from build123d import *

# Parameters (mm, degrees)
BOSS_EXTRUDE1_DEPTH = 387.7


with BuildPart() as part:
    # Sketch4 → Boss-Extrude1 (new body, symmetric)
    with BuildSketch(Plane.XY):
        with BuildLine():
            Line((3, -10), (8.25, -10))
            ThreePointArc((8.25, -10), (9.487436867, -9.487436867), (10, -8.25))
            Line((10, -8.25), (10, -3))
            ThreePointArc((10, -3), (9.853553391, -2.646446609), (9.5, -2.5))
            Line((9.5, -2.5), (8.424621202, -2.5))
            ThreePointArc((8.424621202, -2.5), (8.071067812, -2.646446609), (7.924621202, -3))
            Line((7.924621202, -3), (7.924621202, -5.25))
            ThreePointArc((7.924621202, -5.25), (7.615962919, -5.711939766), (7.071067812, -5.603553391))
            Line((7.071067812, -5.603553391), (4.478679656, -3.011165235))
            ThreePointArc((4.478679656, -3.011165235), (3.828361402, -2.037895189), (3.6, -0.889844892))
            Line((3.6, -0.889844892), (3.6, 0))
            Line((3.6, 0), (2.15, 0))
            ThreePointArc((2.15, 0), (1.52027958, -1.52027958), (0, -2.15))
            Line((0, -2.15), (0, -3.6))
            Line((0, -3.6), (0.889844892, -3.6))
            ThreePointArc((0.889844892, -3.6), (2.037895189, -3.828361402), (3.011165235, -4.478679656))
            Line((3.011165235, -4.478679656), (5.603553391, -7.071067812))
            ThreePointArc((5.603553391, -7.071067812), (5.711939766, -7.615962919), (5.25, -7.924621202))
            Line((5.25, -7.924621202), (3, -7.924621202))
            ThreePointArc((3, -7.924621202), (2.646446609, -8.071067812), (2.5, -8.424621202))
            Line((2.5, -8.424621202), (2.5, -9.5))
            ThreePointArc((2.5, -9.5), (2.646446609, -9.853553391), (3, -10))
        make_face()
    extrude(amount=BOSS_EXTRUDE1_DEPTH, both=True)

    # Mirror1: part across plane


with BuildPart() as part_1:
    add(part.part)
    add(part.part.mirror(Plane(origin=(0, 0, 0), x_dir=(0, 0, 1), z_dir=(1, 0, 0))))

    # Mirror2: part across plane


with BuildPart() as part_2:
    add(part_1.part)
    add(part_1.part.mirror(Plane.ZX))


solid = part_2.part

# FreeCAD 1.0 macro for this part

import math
import FreeCAD as App
import Part
import Sketcher

doc = App.newDocument("Part")
body = doc.addObject("PartDesign::Body", "Body")

# Sketch on XY plane
sketch1 = doc.addObject("Sketcher::SketchObject", "Sketch")
body.addObject(sketch1)
sketch1.AttachmentSupport = (doc.XY_Plane, [""])
sketch1.MapMode = "FlatFace"
sketch1.addGeometry(Part.LineSegment(App.Vector(3, -10, 0), App.Vector(8.25, -10, 0)), False)
sketch1.addGeometry(Part.ArcOfCircle(Part.Circle(App.Vector(8.25, -8.25, 0), App.Vector(0, 0, 1), 1.75), math.radians(-90), math.radians(0)), False)
sketch1.addGeometry(Part.LineSegment(App.Vector(10, -8.25, 0), App.Vector(10, -3, 0)), False)
sketch1.addGeometry(Part.ArcOfCircle(Part.Circle(App.Vector(9.5, -3, 0), App.Vector(0, 0, 1), 0.5), math.radians(0), math.radians(90)), False)
sketch1.addGeometry(Part.LineSegment(App.Vector(9.5, -2.5, 0), App.Vector(8.424621, -2.5, 0)), False)
sketch1.addGeometry(Part.ArcOfCircle(Part.Circle(App.Vector(8.424621, -3, 0), App.Vector(0, 0, 1), 0.5), math.radians(90), math.radians(180)), False)
sketch1.addGeometry(Part.LineSegment(App.Vector(7.924621, -3, 0), App.Vector(7.924621, -5.25, 0)), False)
sketch1.addGeometry(Part.ArcOfCircle(Part.Circle(App.Vector(7.424621, -5.25, 0), App.Vector(0, 0, 1), 0.5), math.radians(-135), math.radians(0)), False)
sketch1.addGeometry(Part.LineSegment(App.Vector(7.071068, -5.603553, 0), App.Vector(4.47868, -3.011165, 0)), False)
sketch1.addGeometry(Part.ArcOfCircle(Part.Circle(App.Vector(6.6, -0.889845, 0), App.Vector(0, 0, 1), 3), math.radians(180), math.radians(225)), False)
sketch1.addGeometry(Part.LineSegment(App.Vector(3.6, -0.889845, 0), App.Vector(3.6, 0, 0)), False)
sketch1.addGeometry(Part.LineSegment(App.Vector(3.6, 0, 0), App.Vector(2.15, 0, 0)), False)
sketch1.addGeometry(Part.ArcOfCircle(Part.Circle(App.Vector(0, 0, 0), App.Vector(0, 0, 1), 2.15), math.radians(-90), math.radians(0)), False)
sketch1.addGeometry(Part.LineSegment(App.Vector(0, -2.15, 0), App.Vector(0, -3.6, 0)), False)
sketch1.addGeometry(Part.LineSegment(App.Vector(0, -3.6, 0), App.Vector(0.889845, -3.6, 0)), False)
sketch1.addGeometry(Part.ArcOfCircle(Part.Circle(App.Vector(0.889845, -6.6, 0), App.Vector(0, 0, 1), 3), math.radians(45), math.radians(90)), False)
sketch1.addGeometry(Part.LineSegment(App.Vector(3.011165, -4.47868, 0), App.Vector(5.603553, -7.071068, 0)), False)
sketch1.addGeometry(Part.ArcOfCircle(Part.Circle(App.Vector(5.25, -7.424621, 0), App.Vector(0, 0, 1), 0.5), math.radians(-90), math.radians(45)), False)
sketch1.addGeometry(Part.LineSegment(App.Vector(5.25, -7.924621, 0), App.Vector(3, -7.924621, 0)), False)
sketch1.addGeometry(Part.ArcOfCircle(Part.Circle(App.Vector(3, -8.424621, 0), App.Vector(0, 0, 1), 0.5), math.radians(90), math.radians(180)), False)
sketch1.addGeometry(Part.LineSegment(App.Vector(2.5, -8.424621, 0), App.Vector(2.5, -9.5, 0)), False)
sketch1.addGeometry(Part.ArcOfCircle(Part.Circle(App.Vector(3, -9.5, 0), App.Vector(0, 0, 1), 0.5), math.radians(180), math.radians(270)), False)
sketch1.addConstraint(Sketcher.Constraint("Tangent", 0, 2, 1, 1))
sketch1.addConstraint(Sketcher.Constraint("Tangent", 1, 2, 2, 1))
sketch1.addConstraint(Sketcher.Constraint("Tangent", 2, 2, 3, 1))
sketch1.addConstraint(Sketcher.Constraint("Tangent", 3, 2, 4, 1))
sketch1.addConstraint(Sketcher.Constraint("Tangent", 4, 2, 5, 1))
sketch1.addConstraint(Sketcher.Constraint("Tangent", 5, 2, 6, 1))
sketch1.addConstraint(Sketcher.Constraint("Tangent", 6, 2, 7, 2))
sketch1.addConstraint(Sketcher.Constraint("Tangent", 7, 1, 8, 1))
sketch1.addConstraint(Sketcher.Constraint("Tangent", 8, 2, 9, 2))
sketch1.addConstraint(Sketcher.Constraint("Tangent", 9, 1, 10, 1))
sketch1.addConstraint(Sketcher.Constraint("Coincident", 10, 2, 11, 1))
sketch1.addConstraint(Sketcher.Constraint("Coincident", 11, 2, 12, 2))
sketch1.addConstraint(Sketcher.Constraint("Coincident", 12, 1, 13, 1))
sketch1.addConstraint(Sketcher.Constraint("Coincident", 13, 2, 14, 1))
sketch1.addConstraint(Sketcher.Constraint("Tangent", 14, 2, 15, 2))
sketch1.addConstraint(Sketcher.Constraint("Tangent", 15, 1, 16, 1))
sketch1.addConstraint(Sketcher.Constraint("Tangent", 16, 2, 17, 2))
sketch1.addConstraint(Sketcher.Constraint("Tangent", 17, 1, 18, 1))
sketch1.addConstraint(Sketcher.Constraint("Tangent", 18, 2, 19, 1))
sketch1.addConstraint(Sketcher.Constraint("Tangent", 19, 2, 20, 1))
sketch1.addConstraint(Sketcher.Constraint("Tangent", 20, 2, 21, 1))
sketch1.addConstraint(Sketcher.Constraint("Tangent", 21, 2, 0, 1))
sketch1.addConstraint(Sketcher.Constraint("Horizontal", 0))
sketch1.addConstraint(Sketcher.Constraint("Vertical", 2))
sketch1.addConstraint(Sketcher.Constraint("Horizontal", 4))
sketch1.addConstraint(Sketcher.Constraint("Vertical", 6))
sketch1.addConstraint(Sketcher.Constraint("Vertical", 10))
sketch1.addConstraint(Sketcher.Constraint("Horizontal", 11))
sketch1.addConstraint(Sketcher.Constraint("Vertical", 13))
sketch1.addConstraint(Sketcher.Constraint("Horizontal", 14))
sketch1.addConstraint(Sketcher.Constraint("Horizontal", 18))
sketch1.addConstraint(Sketcher.Constraint("Vertical", 20))
sketch1.addConstraint(Sketcher.Constraint("Coincident", 12, 3, -1, 1))
sketch1.addConstraint(Sketcher.Constraint("Equal", 3, 5))
sketch1.addConstraint(Sketcher.Constraint("Equal", 5, 7))
sketch1.addConstraint(Sketcher.Constraint("Equal", 9, 15))
sketch1.addConstraint(Sketcher.Constraint("Equal", 7, 17))
sketch1.addConstraint(Sketcher.Constraint("Equal", 17, 19))
sketch1.addConstraint(Sketcher.Constraint("Equal", 19, 21))
sketch1.addConstraint(Sketcher.Constraint("PointOnObject", 10, 2, -1))
sketch1.addConstraint(Sketcher.Constraint("PointOnObject", 12, 1, -2))
sketch1.addConstraint(Sketcher.Constraint("Parallel", 8, 16))
sketch1.addConstraint(Sketcher.Constraint("Equal", 0, 2))
sketch1.addConstraint(Sketcher.Constraint("Equal", 18, 6))
sketch1.addConstraint(Sketcher.Constraint("Equal", 14, 10))
sketch1.addConstraint(Sketcher.Constraint("Equal", 11, 13))
sketch1.addConstraint(Sketcher.Constraint("Equal", 4, 20))
sketch1.addConstraint(Sketcher.Constraint("Equal", 8, 16))
sketch1.addConstraint(Sketcher.Constraint("Radius", 9, 3.0))
sketch1.addConstraint(Sketcher.Constraint("Radius", 3, 0.5))
sketch1.addConstraint(Sketcher.Constraint("Radius", 1, 1.75))
sketch1.addConstraint(Sketcher.Constraint("Radius", 12, 2.15))
sketch1.addConstraint(Sketcher.Constraint("DistanceY", 3, 3, -1, 1, 3.0))
sketch1.addConstraint(Sketcher.Constraint("DistanceY", 0, 2, -1, 1, 10.0))
sketch1.addConstraint(Sketcher.Constraint("DistanceY", 1, 3, 7, 3, 3.0))
sketch1.addConstraint(Sketcher.Constraint("DistanceX", 11, 2, 11, 1, 1.45))
sketch1.addConstraint(Sketcher.Constraint("DistanceX", 4, 2, 4, 1, 1.075379))
pad1 = doc.addObject("PartDesign::Pad", "Pad")
body.addObject(pad1)
pad1.Profile = sketch1
pad1.Length = 775.4
pad1.Midplane = True
body2 = doc.addObject("PartDesign::Body", "Body001")
doc.recompute()

body2.BaseFeature = body
doc.recompute()

mirroring = doc.addObject("Part::Mirroring", "Mirroring")
mirroring.Source = body
mirroring.Base = App.Vector(0, 0, 0)
mirroring.Normal = App.Vector(1, 0, 0)
body3 = doc.addObject("PartDesign::Body", "Body002")
body3.BaseFeature = mirroring
boolean = doc.addObject("PartDesign::Boolean", "Boolean")
body2.addObject(boolean)
boolean.Type = "Fuse"
boolean.addObjects([body3])
doc.recompute()
body4 = doc.addObject("PartDesign::Body", "Body003")
doc.recompute()

body4.BaseFeature = body2
doc.recompute()

mirroring2 = doc.addObject("Part::Mirroring", "Mirroring001")
mirroring2.Source = body2
mirroring2.Base = App.Vector(0, 0, 0)
mirroring2.Normal = App.Vector(0, 1, 0)
body5 = doc.addObject("PartDesign::Body", "Body004")
body5.BaseFeature = mirroring2
boolean2 = doc.addObject("PartDesign::Boolean", "Boolean001")
body4.addObject(boolean2)
boolean2.Type = "Fuse"
boolean2.addObjects([body5])
doc.recompute()
mirroring.Visibility = False
mirroring2.Visibility = False

doc.recompute()
